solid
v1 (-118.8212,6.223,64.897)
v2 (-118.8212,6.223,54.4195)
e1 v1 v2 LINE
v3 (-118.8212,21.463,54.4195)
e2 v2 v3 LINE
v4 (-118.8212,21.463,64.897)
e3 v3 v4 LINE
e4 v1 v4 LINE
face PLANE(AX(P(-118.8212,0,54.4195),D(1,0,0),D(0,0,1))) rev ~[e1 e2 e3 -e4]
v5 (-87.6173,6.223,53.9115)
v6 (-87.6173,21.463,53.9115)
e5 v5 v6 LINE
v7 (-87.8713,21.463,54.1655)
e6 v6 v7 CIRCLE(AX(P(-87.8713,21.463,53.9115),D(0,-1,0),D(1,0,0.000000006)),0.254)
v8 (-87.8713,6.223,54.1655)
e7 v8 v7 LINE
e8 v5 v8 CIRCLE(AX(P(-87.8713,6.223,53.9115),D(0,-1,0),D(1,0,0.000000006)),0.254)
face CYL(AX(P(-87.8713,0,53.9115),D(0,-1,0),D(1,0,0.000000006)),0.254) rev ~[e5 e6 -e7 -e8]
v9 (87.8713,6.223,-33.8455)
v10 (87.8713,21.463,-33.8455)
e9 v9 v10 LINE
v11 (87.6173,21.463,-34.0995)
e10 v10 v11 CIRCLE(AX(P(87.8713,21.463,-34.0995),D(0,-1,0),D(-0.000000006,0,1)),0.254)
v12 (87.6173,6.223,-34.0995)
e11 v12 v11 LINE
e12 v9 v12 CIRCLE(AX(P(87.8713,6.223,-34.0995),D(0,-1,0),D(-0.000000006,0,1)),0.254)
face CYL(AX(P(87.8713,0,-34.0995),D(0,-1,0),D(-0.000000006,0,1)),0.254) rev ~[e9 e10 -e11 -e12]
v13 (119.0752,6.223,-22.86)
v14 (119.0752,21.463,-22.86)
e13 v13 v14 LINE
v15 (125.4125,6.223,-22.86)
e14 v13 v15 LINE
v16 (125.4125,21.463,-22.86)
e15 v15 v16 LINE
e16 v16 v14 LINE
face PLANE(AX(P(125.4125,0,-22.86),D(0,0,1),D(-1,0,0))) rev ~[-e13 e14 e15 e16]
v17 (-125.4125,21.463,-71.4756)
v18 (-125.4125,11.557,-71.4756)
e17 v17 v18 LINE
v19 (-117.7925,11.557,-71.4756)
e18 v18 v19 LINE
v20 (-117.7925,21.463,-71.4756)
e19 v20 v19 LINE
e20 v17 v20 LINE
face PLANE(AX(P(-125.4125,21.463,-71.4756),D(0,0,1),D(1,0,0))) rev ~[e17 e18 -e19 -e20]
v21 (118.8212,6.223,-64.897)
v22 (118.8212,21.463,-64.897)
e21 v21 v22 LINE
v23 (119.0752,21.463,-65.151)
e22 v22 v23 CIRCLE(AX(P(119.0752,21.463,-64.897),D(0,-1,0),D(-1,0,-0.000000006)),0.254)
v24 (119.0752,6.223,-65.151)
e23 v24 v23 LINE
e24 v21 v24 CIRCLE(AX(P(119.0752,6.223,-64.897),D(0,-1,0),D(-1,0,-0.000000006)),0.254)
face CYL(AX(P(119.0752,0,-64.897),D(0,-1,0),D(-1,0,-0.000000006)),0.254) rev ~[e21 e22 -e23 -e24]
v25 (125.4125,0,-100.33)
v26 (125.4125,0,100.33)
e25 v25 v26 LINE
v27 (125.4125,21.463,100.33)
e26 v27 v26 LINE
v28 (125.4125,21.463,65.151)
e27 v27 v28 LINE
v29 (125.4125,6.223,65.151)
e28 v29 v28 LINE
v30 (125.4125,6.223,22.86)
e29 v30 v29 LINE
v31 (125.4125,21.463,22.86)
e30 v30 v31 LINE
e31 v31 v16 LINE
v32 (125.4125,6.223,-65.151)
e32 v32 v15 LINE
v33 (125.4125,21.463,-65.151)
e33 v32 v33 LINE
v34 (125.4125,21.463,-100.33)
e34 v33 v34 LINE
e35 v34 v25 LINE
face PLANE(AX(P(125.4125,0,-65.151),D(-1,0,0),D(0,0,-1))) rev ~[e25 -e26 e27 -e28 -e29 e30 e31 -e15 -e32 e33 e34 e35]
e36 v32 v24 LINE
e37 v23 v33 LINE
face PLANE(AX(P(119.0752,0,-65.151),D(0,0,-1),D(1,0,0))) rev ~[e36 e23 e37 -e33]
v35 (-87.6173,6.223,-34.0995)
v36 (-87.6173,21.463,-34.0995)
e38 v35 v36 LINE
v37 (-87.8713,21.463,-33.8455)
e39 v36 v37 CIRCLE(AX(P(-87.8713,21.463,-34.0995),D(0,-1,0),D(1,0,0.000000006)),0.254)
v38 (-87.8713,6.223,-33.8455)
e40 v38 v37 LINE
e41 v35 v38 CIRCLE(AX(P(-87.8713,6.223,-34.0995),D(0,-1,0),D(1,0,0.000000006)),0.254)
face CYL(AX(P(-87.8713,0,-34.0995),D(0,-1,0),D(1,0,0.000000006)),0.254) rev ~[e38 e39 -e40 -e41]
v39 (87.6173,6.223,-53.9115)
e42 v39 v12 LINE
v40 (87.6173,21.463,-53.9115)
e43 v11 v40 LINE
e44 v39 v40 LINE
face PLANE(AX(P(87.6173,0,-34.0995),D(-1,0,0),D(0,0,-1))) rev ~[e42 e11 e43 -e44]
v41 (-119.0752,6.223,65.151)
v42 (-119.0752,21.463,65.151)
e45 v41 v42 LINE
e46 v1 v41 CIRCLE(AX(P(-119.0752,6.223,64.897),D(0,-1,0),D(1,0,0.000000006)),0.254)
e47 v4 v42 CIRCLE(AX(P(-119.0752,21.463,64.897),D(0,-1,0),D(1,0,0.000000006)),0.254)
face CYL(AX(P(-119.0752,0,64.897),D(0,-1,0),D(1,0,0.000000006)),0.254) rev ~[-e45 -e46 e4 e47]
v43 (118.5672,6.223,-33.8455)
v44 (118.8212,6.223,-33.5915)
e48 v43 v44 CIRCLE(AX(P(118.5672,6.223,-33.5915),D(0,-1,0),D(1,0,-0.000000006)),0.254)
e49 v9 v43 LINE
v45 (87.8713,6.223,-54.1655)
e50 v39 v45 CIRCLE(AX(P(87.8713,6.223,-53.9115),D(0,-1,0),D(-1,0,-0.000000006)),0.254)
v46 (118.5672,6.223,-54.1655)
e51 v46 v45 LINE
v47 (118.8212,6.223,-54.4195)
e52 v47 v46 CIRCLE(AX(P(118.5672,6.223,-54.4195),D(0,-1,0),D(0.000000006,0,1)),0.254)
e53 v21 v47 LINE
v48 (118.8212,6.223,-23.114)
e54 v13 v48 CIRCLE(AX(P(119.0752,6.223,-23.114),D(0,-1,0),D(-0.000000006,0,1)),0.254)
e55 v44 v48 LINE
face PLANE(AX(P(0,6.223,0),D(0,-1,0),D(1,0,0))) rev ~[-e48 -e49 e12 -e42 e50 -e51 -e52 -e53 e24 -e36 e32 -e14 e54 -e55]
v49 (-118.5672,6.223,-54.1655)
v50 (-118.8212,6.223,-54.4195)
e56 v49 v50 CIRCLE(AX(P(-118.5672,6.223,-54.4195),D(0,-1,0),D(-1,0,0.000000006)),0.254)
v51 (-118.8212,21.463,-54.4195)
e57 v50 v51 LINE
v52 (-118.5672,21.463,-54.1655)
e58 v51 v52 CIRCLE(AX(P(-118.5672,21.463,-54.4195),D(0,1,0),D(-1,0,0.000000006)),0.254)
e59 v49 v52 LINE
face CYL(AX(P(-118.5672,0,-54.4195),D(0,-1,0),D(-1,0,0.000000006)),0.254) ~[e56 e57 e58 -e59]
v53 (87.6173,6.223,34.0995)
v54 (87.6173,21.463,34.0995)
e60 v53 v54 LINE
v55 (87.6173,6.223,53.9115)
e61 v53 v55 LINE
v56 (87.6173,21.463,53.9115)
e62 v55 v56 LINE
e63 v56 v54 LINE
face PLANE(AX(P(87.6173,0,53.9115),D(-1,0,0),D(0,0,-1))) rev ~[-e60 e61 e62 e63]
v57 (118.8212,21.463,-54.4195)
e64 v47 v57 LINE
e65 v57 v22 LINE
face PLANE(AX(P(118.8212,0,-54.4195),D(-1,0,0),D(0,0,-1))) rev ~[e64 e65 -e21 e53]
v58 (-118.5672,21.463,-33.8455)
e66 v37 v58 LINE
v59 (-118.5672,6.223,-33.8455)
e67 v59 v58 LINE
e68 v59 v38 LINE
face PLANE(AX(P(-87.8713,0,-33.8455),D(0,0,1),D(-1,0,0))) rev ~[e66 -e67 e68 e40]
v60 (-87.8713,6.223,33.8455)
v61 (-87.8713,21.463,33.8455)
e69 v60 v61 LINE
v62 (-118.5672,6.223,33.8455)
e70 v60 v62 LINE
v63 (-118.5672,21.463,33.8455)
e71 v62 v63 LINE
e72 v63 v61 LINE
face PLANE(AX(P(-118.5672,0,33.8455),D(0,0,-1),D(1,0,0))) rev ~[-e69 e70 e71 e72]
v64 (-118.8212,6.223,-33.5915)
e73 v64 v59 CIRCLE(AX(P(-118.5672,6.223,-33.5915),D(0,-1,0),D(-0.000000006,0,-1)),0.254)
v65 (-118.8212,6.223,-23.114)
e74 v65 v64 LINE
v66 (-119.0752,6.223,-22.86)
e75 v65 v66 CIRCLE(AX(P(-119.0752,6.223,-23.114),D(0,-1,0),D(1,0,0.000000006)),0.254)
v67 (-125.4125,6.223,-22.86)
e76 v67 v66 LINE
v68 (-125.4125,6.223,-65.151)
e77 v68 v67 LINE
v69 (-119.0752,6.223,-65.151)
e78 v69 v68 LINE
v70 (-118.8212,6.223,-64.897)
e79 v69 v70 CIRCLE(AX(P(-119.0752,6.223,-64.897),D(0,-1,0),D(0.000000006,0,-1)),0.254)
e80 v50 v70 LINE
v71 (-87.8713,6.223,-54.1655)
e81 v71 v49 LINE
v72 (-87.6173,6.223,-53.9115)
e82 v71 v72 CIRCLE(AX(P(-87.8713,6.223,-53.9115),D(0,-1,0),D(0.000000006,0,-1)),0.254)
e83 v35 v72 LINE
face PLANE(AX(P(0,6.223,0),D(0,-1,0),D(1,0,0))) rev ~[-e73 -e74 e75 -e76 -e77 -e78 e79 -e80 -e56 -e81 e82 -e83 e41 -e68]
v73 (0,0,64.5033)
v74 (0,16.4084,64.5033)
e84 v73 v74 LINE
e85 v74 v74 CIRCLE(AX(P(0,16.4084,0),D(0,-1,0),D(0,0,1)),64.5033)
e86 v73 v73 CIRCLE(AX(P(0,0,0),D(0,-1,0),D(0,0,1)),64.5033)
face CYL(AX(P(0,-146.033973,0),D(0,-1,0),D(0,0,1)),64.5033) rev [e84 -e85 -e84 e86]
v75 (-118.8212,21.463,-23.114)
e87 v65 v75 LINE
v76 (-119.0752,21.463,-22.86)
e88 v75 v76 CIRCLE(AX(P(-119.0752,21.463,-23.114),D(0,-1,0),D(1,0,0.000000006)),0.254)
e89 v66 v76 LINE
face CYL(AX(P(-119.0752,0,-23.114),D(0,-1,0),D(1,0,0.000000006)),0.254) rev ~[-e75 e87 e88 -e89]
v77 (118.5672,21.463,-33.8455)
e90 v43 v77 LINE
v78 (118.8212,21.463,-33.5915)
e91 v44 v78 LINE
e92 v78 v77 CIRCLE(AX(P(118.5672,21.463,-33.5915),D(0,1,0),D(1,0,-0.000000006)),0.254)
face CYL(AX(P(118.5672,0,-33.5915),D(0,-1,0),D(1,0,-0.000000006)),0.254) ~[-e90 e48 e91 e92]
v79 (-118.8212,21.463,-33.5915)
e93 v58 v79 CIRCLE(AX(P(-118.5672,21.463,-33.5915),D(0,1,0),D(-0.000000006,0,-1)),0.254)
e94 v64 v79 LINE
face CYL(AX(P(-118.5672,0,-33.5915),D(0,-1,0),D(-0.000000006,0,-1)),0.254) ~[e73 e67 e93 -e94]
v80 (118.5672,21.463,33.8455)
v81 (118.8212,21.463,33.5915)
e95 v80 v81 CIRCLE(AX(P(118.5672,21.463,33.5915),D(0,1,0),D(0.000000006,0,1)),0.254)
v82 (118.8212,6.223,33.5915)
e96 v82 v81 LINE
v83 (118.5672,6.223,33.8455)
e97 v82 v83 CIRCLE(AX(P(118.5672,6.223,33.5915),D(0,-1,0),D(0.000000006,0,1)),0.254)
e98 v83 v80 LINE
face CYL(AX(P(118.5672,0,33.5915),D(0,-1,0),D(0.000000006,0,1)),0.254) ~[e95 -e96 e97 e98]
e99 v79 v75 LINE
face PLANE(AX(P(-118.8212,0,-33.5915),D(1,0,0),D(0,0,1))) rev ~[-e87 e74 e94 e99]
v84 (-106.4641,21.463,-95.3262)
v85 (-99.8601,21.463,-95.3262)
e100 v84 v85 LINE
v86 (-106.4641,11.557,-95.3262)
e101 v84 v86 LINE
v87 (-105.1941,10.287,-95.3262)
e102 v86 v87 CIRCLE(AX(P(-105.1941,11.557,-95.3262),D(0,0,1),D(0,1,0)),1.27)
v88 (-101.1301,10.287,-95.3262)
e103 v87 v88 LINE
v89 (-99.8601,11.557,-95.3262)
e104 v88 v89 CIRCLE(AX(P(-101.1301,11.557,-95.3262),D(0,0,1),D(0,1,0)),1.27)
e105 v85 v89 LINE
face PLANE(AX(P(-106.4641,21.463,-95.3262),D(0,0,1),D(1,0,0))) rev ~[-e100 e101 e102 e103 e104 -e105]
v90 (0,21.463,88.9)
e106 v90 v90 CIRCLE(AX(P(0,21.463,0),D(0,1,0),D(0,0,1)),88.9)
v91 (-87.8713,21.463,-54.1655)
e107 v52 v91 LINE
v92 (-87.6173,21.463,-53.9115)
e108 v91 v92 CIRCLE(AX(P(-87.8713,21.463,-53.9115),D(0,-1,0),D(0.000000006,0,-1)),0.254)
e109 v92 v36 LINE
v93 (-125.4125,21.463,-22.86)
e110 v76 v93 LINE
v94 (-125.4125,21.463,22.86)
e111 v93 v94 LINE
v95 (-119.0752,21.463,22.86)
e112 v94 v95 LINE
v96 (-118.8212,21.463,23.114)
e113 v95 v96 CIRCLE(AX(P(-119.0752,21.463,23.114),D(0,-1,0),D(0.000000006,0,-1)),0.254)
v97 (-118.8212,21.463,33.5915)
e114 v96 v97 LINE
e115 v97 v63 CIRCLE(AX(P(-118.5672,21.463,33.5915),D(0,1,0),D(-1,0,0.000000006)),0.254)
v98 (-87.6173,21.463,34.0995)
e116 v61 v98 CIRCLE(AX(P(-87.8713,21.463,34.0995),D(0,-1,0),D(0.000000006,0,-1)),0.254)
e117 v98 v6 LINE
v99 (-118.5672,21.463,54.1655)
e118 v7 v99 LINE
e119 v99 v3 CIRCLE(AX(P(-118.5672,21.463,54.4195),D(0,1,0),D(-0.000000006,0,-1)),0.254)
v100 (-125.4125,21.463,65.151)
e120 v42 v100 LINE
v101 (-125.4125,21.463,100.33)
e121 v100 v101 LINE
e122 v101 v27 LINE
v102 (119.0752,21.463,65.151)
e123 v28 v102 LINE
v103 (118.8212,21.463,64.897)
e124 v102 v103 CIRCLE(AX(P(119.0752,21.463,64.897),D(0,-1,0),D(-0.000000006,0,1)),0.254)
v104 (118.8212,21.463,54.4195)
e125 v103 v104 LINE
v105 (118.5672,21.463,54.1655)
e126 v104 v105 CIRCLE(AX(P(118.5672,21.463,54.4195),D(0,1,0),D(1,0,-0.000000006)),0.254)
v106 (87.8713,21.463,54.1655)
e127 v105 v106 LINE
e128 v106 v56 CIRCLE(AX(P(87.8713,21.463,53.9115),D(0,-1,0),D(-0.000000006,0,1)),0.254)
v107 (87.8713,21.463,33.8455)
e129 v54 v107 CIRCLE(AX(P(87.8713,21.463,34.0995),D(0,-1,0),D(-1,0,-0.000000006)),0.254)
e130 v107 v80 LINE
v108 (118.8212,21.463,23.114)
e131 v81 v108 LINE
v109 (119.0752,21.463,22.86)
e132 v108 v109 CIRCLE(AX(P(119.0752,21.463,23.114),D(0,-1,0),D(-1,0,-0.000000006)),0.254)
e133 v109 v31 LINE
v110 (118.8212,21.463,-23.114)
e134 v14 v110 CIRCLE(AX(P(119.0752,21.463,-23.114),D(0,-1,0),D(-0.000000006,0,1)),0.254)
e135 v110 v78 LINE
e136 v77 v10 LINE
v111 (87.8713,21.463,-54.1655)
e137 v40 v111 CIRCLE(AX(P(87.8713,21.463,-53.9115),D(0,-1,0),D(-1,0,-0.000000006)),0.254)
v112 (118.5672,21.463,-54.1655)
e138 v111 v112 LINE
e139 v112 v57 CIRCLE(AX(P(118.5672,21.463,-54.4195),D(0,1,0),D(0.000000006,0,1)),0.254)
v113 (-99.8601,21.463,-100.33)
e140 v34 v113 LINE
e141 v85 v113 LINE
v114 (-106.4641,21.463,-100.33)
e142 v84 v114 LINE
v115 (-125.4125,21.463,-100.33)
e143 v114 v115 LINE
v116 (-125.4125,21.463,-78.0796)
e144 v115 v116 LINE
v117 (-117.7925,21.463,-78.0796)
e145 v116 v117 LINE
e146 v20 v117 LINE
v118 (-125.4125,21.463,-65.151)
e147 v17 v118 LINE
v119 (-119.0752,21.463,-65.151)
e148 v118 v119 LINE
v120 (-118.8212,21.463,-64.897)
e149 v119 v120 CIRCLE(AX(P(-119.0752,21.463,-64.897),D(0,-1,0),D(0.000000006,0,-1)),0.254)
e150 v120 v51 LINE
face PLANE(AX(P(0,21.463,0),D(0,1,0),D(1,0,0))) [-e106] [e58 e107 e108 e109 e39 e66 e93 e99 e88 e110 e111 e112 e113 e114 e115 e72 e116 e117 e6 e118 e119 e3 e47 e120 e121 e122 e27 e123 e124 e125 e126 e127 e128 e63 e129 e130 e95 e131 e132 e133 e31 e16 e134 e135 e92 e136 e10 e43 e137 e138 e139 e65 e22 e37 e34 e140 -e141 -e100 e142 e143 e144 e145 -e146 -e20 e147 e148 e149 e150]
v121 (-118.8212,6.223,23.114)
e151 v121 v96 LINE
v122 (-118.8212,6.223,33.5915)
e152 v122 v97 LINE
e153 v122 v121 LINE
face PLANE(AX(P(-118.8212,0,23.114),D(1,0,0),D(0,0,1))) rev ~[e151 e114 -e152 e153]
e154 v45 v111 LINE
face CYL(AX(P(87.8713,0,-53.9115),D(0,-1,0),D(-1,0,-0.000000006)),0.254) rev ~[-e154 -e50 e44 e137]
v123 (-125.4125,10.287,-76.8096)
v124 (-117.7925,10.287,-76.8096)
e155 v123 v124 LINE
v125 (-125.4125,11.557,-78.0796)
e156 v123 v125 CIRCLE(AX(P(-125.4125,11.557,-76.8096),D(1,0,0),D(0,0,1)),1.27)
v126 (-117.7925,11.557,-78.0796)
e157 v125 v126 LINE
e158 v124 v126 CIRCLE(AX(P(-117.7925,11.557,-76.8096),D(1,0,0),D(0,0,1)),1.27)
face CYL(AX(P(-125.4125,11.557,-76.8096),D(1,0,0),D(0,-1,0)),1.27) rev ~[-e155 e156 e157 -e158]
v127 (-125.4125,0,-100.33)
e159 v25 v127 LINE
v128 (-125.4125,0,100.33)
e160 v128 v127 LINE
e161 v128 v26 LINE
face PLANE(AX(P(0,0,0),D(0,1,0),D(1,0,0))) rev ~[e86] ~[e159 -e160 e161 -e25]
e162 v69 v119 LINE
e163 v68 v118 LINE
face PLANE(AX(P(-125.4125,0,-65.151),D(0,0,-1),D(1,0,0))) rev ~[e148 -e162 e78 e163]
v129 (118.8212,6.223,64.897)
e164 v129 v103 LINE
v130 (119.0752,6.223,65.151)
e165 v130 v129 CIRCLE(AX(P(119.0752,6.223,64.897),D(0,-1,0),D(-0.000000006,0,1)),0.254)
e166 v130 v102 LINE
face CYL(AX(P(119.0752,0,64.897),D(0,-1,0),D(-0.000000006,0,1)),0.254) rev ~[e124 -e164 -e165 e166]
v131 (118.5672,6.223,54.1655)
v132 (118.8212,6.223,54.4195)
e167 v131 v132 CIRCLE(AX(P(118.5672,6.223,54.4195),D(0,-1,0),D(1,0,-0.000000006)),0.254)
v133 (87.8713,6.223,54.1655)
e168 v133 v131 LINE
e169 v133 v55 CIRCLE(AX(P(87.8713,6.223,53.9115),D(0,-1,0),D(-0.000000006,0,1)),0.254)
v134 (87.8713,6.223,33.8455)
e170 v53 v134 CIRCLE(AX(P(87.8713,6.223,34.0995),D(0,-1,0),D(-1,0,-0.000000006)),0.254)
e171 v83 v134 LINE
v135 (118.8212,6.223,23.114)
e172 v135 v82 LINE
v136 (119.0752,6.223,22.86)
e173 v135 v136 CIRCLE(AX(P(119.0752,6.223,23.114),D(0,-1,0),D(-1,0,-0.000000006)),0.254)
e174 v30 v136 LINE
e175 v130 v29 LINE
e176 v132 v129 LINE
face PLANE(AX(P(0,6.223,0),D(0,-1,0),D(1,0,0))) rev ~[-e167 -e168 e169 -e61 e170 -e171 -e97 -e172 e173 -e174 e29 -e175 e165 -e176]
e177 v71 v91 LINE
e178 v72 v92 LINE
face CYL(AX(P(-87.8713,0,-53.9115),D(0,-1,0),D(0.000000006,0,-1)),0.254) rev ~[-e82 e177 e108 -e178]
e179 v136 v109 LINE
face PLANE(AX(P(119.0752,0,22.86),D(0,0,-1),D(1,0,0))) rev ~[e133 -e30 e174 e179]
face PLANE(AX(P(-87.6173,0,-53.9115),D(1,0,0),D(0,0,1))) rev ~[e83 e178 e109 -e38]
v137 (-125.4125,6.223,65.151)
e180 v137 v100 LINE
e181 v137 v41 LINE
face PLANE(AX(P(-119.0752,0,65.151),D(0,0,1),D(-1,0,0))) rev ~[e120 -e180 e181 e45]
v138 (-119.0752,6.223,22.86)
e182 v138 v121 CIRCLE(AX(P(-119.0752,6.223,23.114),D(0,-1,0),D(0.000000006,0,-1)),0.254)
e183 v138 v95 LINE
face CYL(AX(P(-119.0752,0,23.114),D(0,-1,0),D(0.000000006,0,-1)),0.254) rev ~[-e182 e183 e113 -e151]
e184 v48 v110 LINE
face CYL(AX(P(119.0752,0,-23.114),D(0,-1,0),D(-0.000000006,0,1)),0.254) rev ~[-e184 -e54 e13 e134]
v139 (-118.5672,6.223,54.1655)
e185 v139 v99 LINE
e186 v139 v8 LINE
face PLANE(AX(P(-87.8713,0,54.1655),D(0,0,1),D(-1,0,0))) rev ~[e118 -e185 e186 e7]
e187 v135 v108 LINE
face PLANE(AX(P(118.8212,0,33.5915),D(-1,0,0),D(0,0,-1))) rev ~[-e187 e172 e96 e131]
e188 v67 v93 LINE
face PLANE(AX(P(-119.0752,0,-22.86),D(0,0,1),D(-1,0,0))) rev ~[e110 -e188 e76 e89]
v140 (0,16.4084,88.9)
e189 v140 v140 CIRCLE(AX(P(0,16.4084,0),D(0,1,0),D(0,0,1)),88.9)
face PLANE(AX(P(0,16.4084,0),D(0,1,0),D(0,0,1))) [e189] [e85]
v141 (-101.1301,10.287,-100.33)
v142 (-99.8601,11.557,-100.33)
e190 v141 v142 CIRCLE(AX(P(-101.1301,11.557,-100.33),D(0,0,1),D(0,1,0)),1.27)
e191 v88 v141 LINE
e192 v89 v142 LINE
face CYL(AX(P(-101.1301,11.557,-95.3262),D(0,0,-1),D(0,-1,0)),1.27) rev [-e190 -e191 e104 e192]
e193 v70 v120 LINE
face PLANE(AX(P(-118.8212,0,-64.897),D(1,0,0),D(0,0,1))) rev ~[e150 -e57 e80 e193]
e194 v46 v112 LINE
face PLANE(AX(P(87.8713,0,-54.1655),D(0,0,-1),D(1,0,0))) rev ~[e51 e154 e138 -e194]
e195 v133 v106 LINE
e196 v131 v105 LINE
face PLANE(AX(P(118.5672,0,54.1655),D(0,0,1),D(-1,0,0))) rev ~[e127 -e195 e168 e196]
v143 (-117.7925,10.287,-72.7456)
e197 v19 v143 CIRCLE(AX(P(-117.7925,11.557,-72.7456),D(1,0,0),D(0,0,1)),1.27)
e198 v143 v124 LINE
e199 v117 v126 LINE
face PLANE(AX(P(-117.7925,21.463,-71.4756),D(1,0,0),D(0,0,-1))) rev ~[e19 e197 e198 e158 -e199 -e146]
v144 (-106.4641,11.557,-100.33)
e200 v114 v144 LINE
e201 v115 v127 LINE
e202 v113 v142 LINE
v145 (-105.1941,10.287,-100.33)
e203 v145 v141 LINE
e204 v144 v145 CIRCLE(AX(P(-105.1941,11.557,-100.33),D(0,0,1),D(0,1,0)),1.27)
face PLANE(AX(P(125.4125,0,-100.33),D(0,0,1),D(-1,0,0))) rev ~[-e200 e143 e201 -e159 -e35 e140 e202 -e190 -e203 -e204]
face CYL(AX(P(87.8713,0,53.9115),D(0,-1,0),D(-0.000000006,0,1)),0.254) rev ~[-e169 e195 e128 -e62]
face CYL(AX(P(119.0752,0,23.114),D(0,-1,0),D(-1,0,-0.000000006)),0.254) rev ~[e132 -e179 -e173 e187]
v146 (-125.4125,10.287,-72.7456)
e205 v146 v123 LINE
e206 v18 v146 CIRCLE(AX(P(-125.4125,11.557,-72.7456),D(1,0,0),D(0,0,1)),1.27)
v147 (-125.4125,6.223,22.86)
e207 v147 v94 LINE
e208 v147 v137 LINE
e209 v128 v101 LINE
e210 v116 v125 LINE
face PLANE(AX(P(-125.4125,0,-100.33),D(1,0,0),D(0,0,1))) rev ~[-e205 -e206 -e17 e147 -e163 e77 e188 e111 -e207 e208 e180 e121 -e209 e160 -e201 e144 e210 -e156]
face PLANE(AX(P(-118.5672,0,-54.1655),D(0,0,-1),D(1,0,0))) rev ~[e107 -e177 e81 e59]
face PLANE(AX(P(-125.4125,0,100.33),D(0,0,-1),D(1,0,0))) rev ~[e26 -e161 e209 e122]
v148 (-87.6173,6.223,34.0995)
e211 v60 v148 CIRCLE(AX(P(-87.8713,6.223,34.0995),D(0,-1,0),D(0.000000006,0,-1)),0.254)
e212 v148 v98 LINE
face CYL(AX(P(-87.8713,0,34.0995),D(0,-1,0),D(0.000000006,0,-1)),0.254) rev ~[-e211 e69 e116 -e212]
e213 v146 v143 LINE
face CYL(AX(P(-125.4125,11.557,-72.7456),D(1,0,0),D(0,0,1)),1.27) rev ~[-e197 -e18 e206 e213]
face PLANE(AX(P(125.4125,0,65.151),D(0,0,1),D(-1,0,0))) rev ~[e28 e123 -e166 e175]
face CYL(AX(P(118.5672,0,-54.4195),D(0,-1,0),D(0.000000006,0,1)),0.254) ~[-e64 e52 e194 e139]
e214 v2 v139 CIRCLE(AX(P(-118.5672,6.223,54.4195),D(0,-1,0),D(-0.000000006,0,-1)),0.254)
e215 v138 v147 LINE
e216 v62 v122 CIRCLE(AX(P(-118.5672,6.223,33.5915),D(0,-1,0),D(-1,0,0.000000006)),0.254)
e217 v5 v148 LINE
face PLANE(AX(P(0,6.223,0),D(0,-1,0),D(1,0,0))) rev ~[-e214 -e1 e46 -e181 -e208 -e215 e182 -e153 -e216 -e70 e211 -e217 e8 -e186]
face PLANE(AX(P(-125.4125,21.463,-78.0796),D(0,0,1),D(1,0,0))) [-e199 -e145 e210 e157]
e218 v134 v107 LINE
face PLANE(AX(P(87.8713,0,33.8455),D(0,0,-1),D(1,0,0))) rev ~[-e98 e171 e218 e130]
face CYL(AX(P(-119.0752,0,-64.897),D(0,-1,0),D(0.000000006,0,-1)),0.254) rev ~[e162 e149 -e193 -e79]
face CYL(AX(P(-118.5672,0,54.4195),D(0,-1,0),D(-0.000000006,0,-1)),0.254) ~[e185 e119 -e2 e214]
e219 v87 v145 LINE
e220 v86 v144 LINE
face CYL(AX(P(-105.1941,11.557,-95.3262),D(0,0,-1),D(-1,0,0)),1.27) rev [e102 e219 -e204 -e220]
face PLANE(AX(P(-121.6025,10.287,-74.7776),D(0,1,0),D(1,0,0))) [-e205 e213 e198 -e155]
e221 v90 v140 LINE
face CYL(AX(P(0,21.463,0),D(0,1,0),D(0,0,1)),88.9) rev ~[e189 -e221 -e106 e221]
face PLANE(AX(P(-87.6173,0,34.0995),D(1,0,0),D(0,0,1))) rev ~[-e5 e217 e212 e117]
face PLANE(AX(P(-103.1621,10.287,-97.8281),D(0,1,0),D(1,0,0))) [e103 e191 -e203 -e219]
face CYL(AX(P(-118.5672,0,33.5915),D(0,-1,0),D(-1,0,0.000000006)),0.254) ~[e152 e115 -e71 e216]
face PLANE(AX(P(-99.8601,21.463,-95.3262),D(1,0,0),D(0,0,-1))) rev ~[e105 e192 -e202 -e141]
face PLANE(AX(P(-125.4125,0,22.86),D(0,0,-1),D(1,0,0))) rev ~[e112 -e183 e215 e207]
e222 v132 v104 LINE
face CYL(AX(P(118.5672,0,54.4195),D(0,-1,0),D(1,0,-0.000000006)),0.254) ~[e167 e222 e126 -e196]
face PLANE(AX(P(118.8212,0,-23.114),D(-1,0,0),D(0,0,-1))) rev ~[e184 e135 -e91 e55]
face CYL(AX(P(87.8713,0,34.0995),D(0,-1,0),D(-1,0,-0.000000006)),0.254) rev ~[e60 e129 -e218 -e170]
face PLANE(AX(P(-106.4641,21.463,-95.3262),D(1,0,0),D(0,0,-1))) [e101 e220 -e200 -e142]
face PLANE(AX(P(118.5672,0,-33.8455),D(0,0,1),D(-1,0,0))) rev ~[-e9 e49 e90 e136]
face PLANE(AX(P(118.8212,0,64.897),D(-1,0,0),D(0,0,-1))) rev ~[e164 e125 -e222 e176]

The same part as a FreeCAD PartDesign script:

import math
import FreeCAD as App
import Part
import Sketcher
Q = App.Units.Quantity


def edges_at(feature, points):
    """Names of the edges that pass closest to the given points."""
    edges = feature.Shape.Edges
    near = lambda p: min(range(len(edges)), key=lambda i: edges[i].distToShape(Part.Vertex(*p))[0])
    return sorted({f"Edge{near(p) + 1}" for p in points})

doc = App.newDocument("Part")
body = doc.addObject("PartDesign::Body", "Body")

# Sketch on XZ plane
sketch1 = body.newObject("Sketcher::SketchObject", "Sketch")
sketch1.AttachmentSupport = (doc.getObject("XZ_Plane"), [""])
sketch1.MapMode = "FlatFace"
sketch1.addGeometry([
    Part.LineSegment(App.Vector(-125.4125, -65.151, 0), App.Vector(-119.0752, -65.151, 0)),  # 0
    Part.ArcOfCircle(Part.Circle(App.Vector(-119.0752, -64.897, 0), App.Vector(0, 0, 1), 0.254), math.radians(-90), math.radians(0)),  # 1
    Part.LineSegment(App.Vector(-118.8212, -64.897, 0), App.Vector(-118.8212, -54.4195, 0)),  # 2
    Part.ArcOfCircle(Part.Circle(App.Vector(-118.5672, -54.4195, 0), App.Vector(0, 0, 1), 0.254), math.radians(90), math.radians(180)),  # 3
    Part.LineSegment(App.Vector(-118.5672, -54.1655, 0), App.Vector(-87.8713, -54.1655, 0)),  # 4
    Part.ArcOfCircle(Part.Circle(App.Vector(-87.8713, -53.9115, 0), App.Vector(0, 0, 1), 0.254), math.radians(-90), math.radians(0)),  # 5
    Part.LineSegment(App.Vector(-87.6173, -53.9115, 0), App.Vector(-87.6173, -34.0995, 0)),  # 6
    Part.ArcOfCircle(Part.Circle(App.Vector(-87.8713, -34.0995, 0), App.Vector(0, 0, 1), 0.254), math.radians(0), math.radians(90)),  # 7
    Part.LineSegment(App.Vector(-87.8713, -33.8455, 0), App.Vector(-118.5672, -33.8455, 0)),  # 8
    Part.ArcOfCircle(Part.Circle(App.Vector(-118.5672, -33.5915, 0), App.Vector(0, 0, 1), 0.254), math.radians(-180), math.radians(-90)),  # 9
    Part.LineSegment(App.Vector(-118.8212, -33.5915, 0), App.Vector(-118.8212, -23.114, 0)),  # 10
    Part.ArcOfCircle(Part.Circle(App.Vector(-119.0752, -23.114, 0), App.Vector(0, 0, 1), 0.254), math.radians(0), math.radians(90)),  # 11
    Part.LineSegment(App.Vector(-119.0752, -22.86, 0), App.Vector(-125.4125, -22.86, 0)),  # 12
    Part.LineSegment(App.Vector(-125.4125, -22.86, 0), App.Vector(-125.4125, 22.86, 0)),  # 13
    Part.LineSegment(App.Vector(-125.4125, 22.86, 0), App.Vector(-119.0752, 22.86, 0)),  # 14
    Part.ArcOfCircle(Part.Circle(App.Vector(-119.0752, 23.114, 0), App.Vector(0, 0, 1), 0.254), math.radians(-90), math.radians(0)),  # 15
    Part.LineSegment(App.Vector(-118.8212, 23.114, 0), App.Vector(-118.8212, 33.5915, 0)),  # 16
    Part.ArcOfCircle(Part.Circle(App.Vector(-118.5672, 33.5915, 0), App.Vector(0, 0, 1), 0.254), math.radians(90), math.radians(180)),  # 17
    Part.LineSegment(App.Vector(-118.5672, 33.8455, 0), App.Vector(-87.8713, 33.8455, 0)),  # 18
    Part.ArcOfCircle(Part.Circle(App.Vector(-87.8713, 34.0995, 0), App.Vector(0, 0, 1), 0.254), math.radians(-90), math.radians(0)),  # 19
    Part.LineSegment(App.Vector(-87.6173, 34.0995, 0), App.Vector(-87.6173, 53.9115, 0)),  # 20
    Part.ArcOfCircle(Part.Circle(App.Vector(-87.8713, 53.9115, 0), App.Vector(0, 0, 1), 0.254), math.radians(0), math.radians(90)),  # 21
    Part.LineSegment(App.Vector(-87.8713, 54.1655, 0), App.Vector(-118.5672, 54.1655, 0)),  # 22
    Part.ArcOfCircle(Part.Circle(App.Vector(-118.5672, 54.4195, 0), App.Vector(0, 0, 1), 0.254), math.radians(-180), math.radians(-90)),  # 23
    Part.LineSegment(App.Vector(-118.8212, 54.4195, 0), App.Vector(-118.8212, 64.897, 0)),  # 24
    Part.ArcOfCircle(Part.Circle(App.Vector(-119.0752, 64.897, 0), App.Vector(0, 0, 1), 0.254), math.radians(0), math.radians(90)),  # 25
    Part.LineSegment(App.Vector(-119.0752, 65.151, 0), App.Vector(-125.4125, 65.151, 0)),  # 26
    Part.LineSegment(App.Vector(-125.4125, 65.151, 0), App.Vector(-125.4125, 100.33, 0)),  # 27
    Part.LineSegment(App.Vector(-125.4125, 100.33, 0), App.Vector(125.4125, 100.33, 0)),  # 28
    Part.LineSegment(App.Vector(125.4125, 100.33, 0), App.Vector(125.4125, 65.151, 0)),  # 29
    Part.LineSegment(App.Vector(125.4125, 65.151, 0), App.Vector(119.0752, 65.151, 0)),  # 30
    Part.ArcOfCircle(Part.Circle(App.Vector(119.0752, 64.897, 0), App.Vector(0, 0, 1), 0.254), math.radians(90), math.radians(180)),  # 31
    Part.LineSegment(App.Vector(118.8212, 64.897, 0), App.Vector(118.8212, 54.4195, 0)),  # 32
    Part.ArcOfCircle(Part.Circle(App.Vector(118.5672, 54.4195, 0), App.Vector(0, 0, 1), 0.254), math.radians(-90), math.radians(0)),  # 33
    Part.LineSegment(App.Vector(118.5672, 54.1655, 0), App.Vector(87.8713, 54.1655, 0)),  # 34
    Part.ArcOfCircle(Part.Circle(App.Vector(87.8713, 53.9115, 0), App.Vector(0, 0, 1), 0.254), math.radians(90), math.radians(180)),  # 35
    Part.LineSegment(App.Vector(87.6173, 53.9115, 0), App.Vector(87.6173, 34.0995, 0)),  # 36
    Part.ArcOfCircle(Part.Circle(App.Vector(87.8713, 34.0995, 0), App.Vector(0, 0, 1), 0.254), math.radians(-180), math.radians(-90)),  # 37
    Part.LineSegment(App.Vector(87.8713, 33.8455, 0), App.Vector(118.5672, 33.8455, 0)),  # 38
    Part.ArcOfCircle(Part.Circle(App.Vector(118.5672, 33.5915, 0), App.Vector(0, 0, 1), 0.254), math.radians(0), math.radians(90)),  # 39
    Part.LineSegment(App.Vector(118.8212, 33.5915, 0), App.Vector(118.8212, 23.114, 0)),  # 40
    Part.ArcOfCircle(Part.Circle(App.Vector(119.0752, 23.114, 0), App.Vector(0, 0, 1), 0.254), math.radians(-180), math.radians(-90)),  # 41
    Part.LineSegment(App.Vector(119.0752, 22.86, 0), App.Vector(125.4125, 22.86, 0)),  # 42
    Part.LineSegment(App.Vector(125.4125, 22.86, 0), App.Vector(125.4125, -22.86, 0)),  # 43
    Part.LineSegment(App.Vector(125.4125, -22.86, 0), App.Vector(119.0752, -22.86, 0)),  # 44
    Part.ArcOfCircle(Part.Circle(App.Vector(119.0752, -23.114, 0), App.Vector(0, 0, 1), 0.254), math.radians(90), math.radians(180)),  # 45
    Part.LineSegment(App.Vector(118.8212, -23.114, 0), App.Vector(118.8212, -33.5915, 0)),  # 46
    Part.ArcOfCircle(Part.Circle(App.Vector(118.5672, -33.5915, 0), App.Vector(0, 0, 1), 0.254), math.radians(-90), math.radians(0)),  # 47
    Part.LineSegment(App.Vector(118.5672, -33.8455, 0), App.Vector(87.8713, -33.8455, 0)),  # 48
    Part.ArcOfCircle(Part.Circle(App.Vector(87.8713, -34.0995, 0), App.Vector(0, 0, 1), 0.254), math.radians(90), math.radians(180)),  # 49
    Part.LineSegment(App.Vector(87.6173, -34.0995, 0), App.Vector(87.6173, -53.9115, 0)),  # 50
    Part.ArcOfCircle(Part.Circle(App.Vector(87.8713, -53.9115, 0), App.Vector(0, 0, 1), 0.254), math.radians(-180), math.radians(-90)),  # 51
    Part.LineSegment(App.Vector(87.8713, -54.1655, 0), App.Vector(118.5672, -54.1655, 0)),  # 52
    Part.ArcOfCircle(Part.Circle(App.Vector(118.5672, -54.4195, 0), App.Vector(0, 0, 1), 0.254), math.radians(0), math.radians(90)),  # 53
    Part.LineSegment(App.Vector(118.8212, -54.4195, 0), App.Vector(118.8212, -64.897, 0)),  # 54
    Part.ArcOfCircle(Part.Circle(App.Vector(119.0752, -64.897, 0), App.Vector(0, 0, 1), 0.254), math.radians(-180), math.radians(-90)),  # 55
    Part.LineSegment(App.Vector(119.0752, -65.151, 0), App.Vector(125.4125, -65.151, 0)),  # 56
    Part.LineSegment(App.Vector(125.4125, -65.151, 0), App.Vector(125.4125, -100.33, 0)),  # 57
    Part.LineSegment(App.Vector(125.4125, -100.33, 0), App.Vector(-125.4125, -100.33, 0)),  # 58
    Part.LineSegment(App.Vector(-125.4125, -100.33, 0), App.Vector(-125.4125, -65.151, 0)),  # 59
], False)
sketch1.addConstraint([
    Sketcher.Constraint("Tangent", 0, 2, 1, 1),
    Sketcher.Constraint("Tangent", 1, 2, 2, 1),
    Sketcher.Constraint("Tangent", 2, 2, 3, 2),
    Sketcher.Constraint("Tangent", 3, 1, 4, 1),
    Sketcher.Constraint("Tangent", 4, 2, 5, 1),
    Sketcher.Constraint("Tangent", 5, 2, 6, 1),
    Sketcher.Constraint("Tangent", 6, 2, 7, 1),
    Sketcher.Constraint("Tangent", 7, 2, 8, 1),
    Sketcher.Constraint("Tangent", 8, 2, 9, 2),
    Sketcher.Constraint("Tangent", 9, 1, 10, 1),
    Sketcher.Constraint("Tangent", 10, 2, 11, 1),
    Sketcher.Constraint("Tangent", 11, 2, 12, 1),
    Sketcher.Constraint("Coincident", 12, 2, 13, 1),
    Sketcher.Constraint("Coincident", 13, 2, 14, 1),
    Sketcher.Constraint("Tangent", 14, 2, 15, 1),
    Sketcher.Constraint("Tangent", 15, 2, 16, 1),
    Sketcher.Constraint("Tangent", 16, 2, 17, 2),
    Sketcher.Constraint("Tangent", 17, 1, 18, 1),
    Sketcher.Constraint("Tangent", 18, 2, 19, 1),
    Sketcher.Constraint("Tangent", 19, 2, 20, 1),
    Sketcher.Constraint("Tangent", 20, 2, 21, 1),
    Sketcher.Constraint("Tangent", 21, 2, 22, 1),
    Sketcher.Constraint("Tangent", 22, 2, 23, 2),
    Sketcher.Constraint("Tangent", 23, 1, 24, 1),
    Sketcher.Constraint("Tangent", 24, 2, 25, 1),
    Sketcher.Constraint("Tangent", 25, 2, 26, 1),
    Sketcher.Constraint("Coincident", 26, 2, 27, 1),
    Sketcher.Constraint("Coincident", 27, 2, 28, 1),
    Sketcher.Constraint("Coincident", 28, 2, 29, 1),
    Sketcher.Constraint("Coincident", 29, 2, 30, 1),
    Sketcher.Constraint("Tangent", 30, 2, 31, 1),
    Sketcher.Constraint("Tangent", 31, 2, 32, 1),
    Sketcher.Constraint("Tangent", 32, 2, 33, 2),
    Sketcher.Constraint("Tangent", 33, 1, 34, 1),
    Sketcher.Constraint("Tangent", 34, 2, 35, 1),
    Sketcher.Constraint("Tangent", 35, 2, 36, 1),
    Sketcher.Constraint("Tangent", 36, 2, 37, 1),
    Sketcher.Constraint("Tangent", 37, 2, 38, 1),
    Sketcher.Constraint("Tangent", 38, 2, 39, 2),
    Sketcher.Constraint("Tangent", 39, 1, 40, 1),
    Sketcher.Constraint("Tangent", 40, 2, 41, 1),
    Sketcher.Constraint("Tangent", 41, 2, 42, 1),
    Sketcher.Constraint("Coincident", 42, 2, 43, 1),
    Sketcher.Constraint("Coincident", 43, 2, 44, 1),
    Sketcher.Constraint("Tangent", 44, 2, 45, 1),
    Sketcher.Constraint("Tangent", 45, 2, 46, 1),
    Sketcher.Constraint("Tangent", 46, 2, 47, 2),
    Sketcher.Constraint("Tangent", 47, 1, 48, 1),
    Sketcher.Constraint("Tangent", 48, 2, 49, 1),
    Sketcher.Constraint("Tangent", 49, 2, 50, 1),
    Sketcher.Constraint("Tangent", 50, 2, 51, 1),
    Sketcher.Constraint("Tangent", 51, 2, 52, 1),
    Sketcher.Constraint("Tangent", 52, 2, 53, 2),
    Sketcher.Constraint("Tangent", 53, 1, 54, 1),
    Sketcher.Constraint("Tangent", 54, 2, 55, 1),
    Sketcher.Constraint("Tangent", 55, 2, 56, 1),
    Sketcher.Constraint("Coincident", 56, 2, 57, 1),
    Sketcher.Constraint("Coincident", 57, 2, 58, 1),
    Sketcher.Constraint("Coincident", 58, 2, 59, 1),
    Sketcher.Constraint("Coincident", 59, 2, 0, 1),
    Sketcher.Constraint("Horizontal", 0),
    Sketcher.Constraint("Vertical", 2),
    Sketcher.Constraint("Horizontal", 4),
    Sketcher.Constraint("Vertical", 6),
    Sketcher.Constraint("Horizontal", 8),
    Sketcher.Constraint("Vertical", 10),
    Sketcher.Constraint("Horizontal", 12),
    Sketcher.Constraint("Vertical", 13),
    Sketcher.Constraint("Horizontal", 14),
    Sketcher.Constraint("Vertical", 16),
    Sketcher.Constraint("Horizontal", 18),
    Sketcher.Constraint("Vertical", 20),
    Sketcher.Constraint("Horizontal", 22),
    Sketcher.Constraint("Vertical", 24),
    Sketcher.Constraint("Horizontal", 26),
    Sketcher.Constraint("Vertical", 27),
    Sketcher.Constraint("Horizontal", 28),
    Sketcher.Constraint("Vertical", 29),
    Sketcher.Constraint("Horizontal", 30),
    Sketcher.Constraint("Vertical", 32),
    Sketcher.Constraint("Horizontal", 34),
    Sketcher.Constraint("Vertical", 36),
    Sketcher.Constraint("Horizontal", 38),
    Sketcher.Constraint("Vertical", 40),
    Sketcher.Constraint("Horizontal", 42),
    Sketcher.Constraint("Vertical", 43),
    Sketcher.Constraint("Horizontal", 44),
    Sketcher.Constraint("Vertical", 46),
    Sketcher.Constraint("Horizontal", 48),
    Sketcher.Constraint("Vertical", 50),
    Sketcher.Constraint("Horizontal", 52),
    Sketcher.Constraint("Vertical", 54),
    Sketcher.Constraint("Horizontal", 56),
    Sketcher.Constraint("Vertical", 57),
    Sketcher.Constraint("Horizontal", 58),
    Sketcher.Constraint("Vertical", 59),
    Sketcher.Constraint("Equal", 1, 3),
    Sketcher.Constraint("Equal", 3, 5),
    Sketcher.Constraint("Equal", 5, 7),
    Sketcher.Constraint("Equal", 7, 9),
    Sketcher.Constraint("Equal", 9, 11),
    Sketcher.Constraint("Equal", 11, 15),
    Sketcher.Constraint("Equal", 15, 17),
    Sketcher.Constraint("Equal", 17, 19),
    Sketcher.Constraint("Equal", 19, 21),
    Sketcher.Constraint("Equal", 21, 23),
    Sketcher.Constraint("Equal", 23, 25),
    Sketcher.Constraint("Equal", 25, 31),
    Sketcher.Constraint("Equal", 31, 33),
    Sketcher.Constraint("Equal", 33, 35),
    Sketcher.Constraint("Equal", 35, 37),
    Sketcher.Constraint("Equal", 37, 39),
    Sketcher.Constraint("Equal", 39, 41),
    Sketcher.Constraint("Equal", 41, 45),
    Sketcher.Constraint("Equal", 45, 47),
    Sketcher.Constraint("Equal", 47, 49),
    Sketcher.Constraint("Equal", 49, 51),
    Sketcher.Constraint("Equal", 51, 53),
    Sketcher.Constraint("Equal", 53, 55),
    Sketcher.Constraint("Symmetric", 1, 3, 31, 3, -1, 1),
    Sketcher.Constraint("Symmetric", 5, 3, 35, 3, -1, 1),
    Sketcher.Constraint("Symmetric", 9, 3, 39, 3, -1, 1),
    Sketcher.Constraint("Symmetric", 15, 3, 45, 3, -1, 1),
    Sketcher.Constraint("Symmetric", 19, 3, 49, 3, -1, 1),
    Sketcher.Constraint("Symmetric", 23, 3, 53, 3, -1, 1),
    Sketcher.Constraint("Symmetric", 12, 2, 42, 2, -1, 1),
    Sketcher.Constraint("Symmetric", 26, 2, 56, 2, -1, 1),
    Sketcher.Constraint("Symmetric", 28, 2, 58, 2, -1, 1),
    Sketcher.Constraint("Symmetric", 25, 3, 31, 3, -2),
    Sketcher.Constraint("Symmetric", 21, 3, 35, 3, -2),
    Sketcher.Constraint("Symmetric", 17, 3, 39, 3, -2),
    Sketcher.Constraint("Horizontal", 15, 3, 41, 3),
    Sketcher.Constraint("Vertical", 3, 3, 9, 3),
    Sketcher.Constraint("Vertical", 13, 2, 26, 2),
    Sketcher.Constraint("Vertical", 29, 2, 42, 2),
    Sketcher.Constraint("Equal", 2, 10),
    Sketcher.Constraint("Radius", 1, Q("0.01 in")),
    Sketcher.Constraint("DistanceY", 13, 1, 13, 2, Q("1.8 in")),
    Sketcher.Constraint("DistanceY", 6, 1, 6, 2, Q("0.78 in")),
    Sketcher.Constraint("DistanceX", 28, 1, 28, 2, Q("9.875 in")),
    Sketcher.Constraint("DistanceY", 27, 1, 27, 2, Q("1.385 in")),
    Sketcher.Constraint("DistanceY", -1, 1, 27, 2, Q("3.95 in")),
    Sketcher.Constraint("DistanceX", 0, 1, 0, 2, Q("0.2495 in")),
    Sketcher.Constraint("DistanceX", 4, 1, 4, 2, Q("1.2085 in")),
])
pad1 = body.newObject("PartDesign::Pad", "Pad")
pad1.Profile = sketch1
pad1.Length = Q("0.845 in")
pad1.Reversed = True

# Sketch on XZ plane
sketch2 = body.newObject("Sketcher::SketchObject", "Sketch001")
sketch2.AttachmentSupport = (doc.getObject("XZ_Plane"), [""])
sketch2.MapMode = "FlatFace"
sketch2.AttachmentOffset = App.Placement(App.Vector(0, 0, -0.845 * 25.4), App.Rotation())
sketch2.addGeometry(Part.Circle(App.Vector(0, 0, 0), App.Vector(0, 0, 1), 88.9), False)
sketch2.addConstraint([
    Sketcher.Constraint("Coincident", 0, 3, -1, 1),
    Sketcher.Constraint("Diameter", 0, Q("7 in")),
])
pocket1 = body.newObject("PartDesign::Pocket", "Pocket")
pocket1.Profile = sketch2
pocket1.Length = Q("0.199 in")
pocket1.Reversed = True

# Sketch on XZ plane
sketch3 = body.newObject("Sketcher::SketchObject", "Sketch002")
sketch3.AttachmentSupport = (doc.getObject("XZ_Plane"), [""])
sketch3.MapMode = "FlatFace"
sketch3.AttachmentOffset = App.Placement(App.Vector(0, 0, -0.646 * 25.4), App.Rotation())
sketch3.addGeometry(Part.Circle(App.Vector(0, 0, 0), App.Vector(0, 0, 1), 64.5033), False)
sketch3.addConstraint([
    Sketcher.Constraint("Coincident", 0, 3, -1, 1),
    Sketcher.Constraint("Diameter", 0, Q("5.079 in")),
])
pocket2 = body.newObject("PartDesign::Pocket", "Pocket001")
pocket2.Profile = sketch3
pocket2.Type = "ThroughAll"
pocket2.Midplane = True

# Sketch on XZ plane
sketch4 = body.newObject("Sketcher::SketchObject", "Sketch003")
sketch4.AttachmentSupport = (doc.getObject("XZ_Plane"), [""])
sketch4.MapMode = "FlatFace"
sketch4.addGeometry([
    Part.LineSegment(App.Vector(-125.4125, 100.33, 0), App.Vector(-125.4125, -100.33, 0)),
    Part.LineSegment(App.Vector(-125.4125, -100.33, 0), App.Vector(125.4125, -100.33, 0)),
    Part.LineSegment(App.Vector(125.4125, -100.33, 0), App.Vector(125.4125, 100.33, 0)),
    Part.LineSegment(App.Vector(125.4125, 100.33, 0), App.Vector(-125.4125, 100.33, 0)),
], False)
sketch4.addConstraint([
    Sketcher.Constraint("Coincident", 0, 2, 1, 1),
    Sketcher.Constraint("Coincident", 1, 2, 2, 1),
    Sketcher.Constraint("Coincident", 2, 2, 3, 1),
    Sketcher.Constraint("Coincident", 3, 2, 0, 1),
    Sketcher.Constraint("Vertical", 0),
    Sketcher.Constraint("Horizontal", 1),
    Sketcher.Constraint("Vertical", 2),
    Sketcher.Constraint("Horizontal", 3),
    Sketcher.Constraint("Symmetric", 0, 2, 2, 2, -1, 1),
    Sketcher.Constraint("DistanceY", 0, 2, 0, 1, Q("7.9 in")),
    Sketcher.Constraint("DistanceX", 1, 1, 1, 2, Q("9.875 in")),
])
pad2 = body.newObject("PartDesign::Pad", "Pad001")
pad2.Profile = sketch4
pad2.Length = Q("0.245 in")
pad2.Reversed = True

# Sketch on XZ plane
sketch5 = body.newObject("Sketcher::SketchObject", "Sketch004")
sketch5.AttachmentSupport = (doc.getObject("XZ_Plane"), [""])
sketch5.MapMode = "FlatFace"
sketch5.AttachmentOffset = App.Placement(App.Vector(0, 0, -0.646 * 25.4), App.Rotation())
sketch5.addGeometry(Part.Circle(App.Vector(0, 0, 0), App.Vector(0, 0, 1), 64.5033), False)
sketch5.addConstraint([
    Sketcher.Constraint("Coincident", 0, 3, -1, 1),
    Sketcher.Constraint("Diameter", 0, Q("5.079 in")),
])
pocket3 = body.newObject("PartDesign::Pocket", "Pocket002")
pocket3.Profile = sketch5
pocket3.Type = "ThroughAll"
pocket3.Midplane = True

# Sketch on XZ plane
sketch6 = body.newObject("Sketcher::SketchObject", "Sketch005")
sketch6.AttachmentSupport = (doc.getObject("XZ_Plane"), [""])
sketch6.MapMode = "FlatFace"
sketch6.AttachmentOffset = App.Placement(App.Vector(0, 0, -0.845 * 25.4), App.Rotation())
sketch6.addGeometry([
    Part.LineSegment(App.Vector(-106.4641, -100.33, 0), App.Vector(-106.4641, -95.3262, 0)),  # 0
    Part.LineSegment(App.Vector(-106.4641, -95.3262, 0), App.Vector(-99.8601, -95.3262, 0)),  # 1
    Part.LineSegment(App.Vector(-99.8601, -95.3262, 0), App.Vector(-99.8601, -100.33, 0)),  # 2
    Part.LineSegment(App.Vector(-99.8601, -100.33, 0), App.Vector(-106.4641, -100.33, 0)),  # 3
    Part.LineSegment(App.Vector(-125.4125, -78.0796, 0), App.Vector(-125.4125, -71.4756, 0)),  # 4
    Part.LineSegment(App.Vector(-125.4125, -71.4756, 0), App.Vector(-117.7925, -71.4756, 0)),  # 5
    Part.LineSegment(App.Vector(-117.7925, -71.4756, 0), App.Vector(-117.7925, -78.0796, 0)),  # 6
    Part.LineSegment(App.Vector(-117.7925, -78.0796, 0), App.Vector(-125.4125, -78.0796, 0)),  # 7
], False)
sketch6.addConstraint([
    Sketcher.Constraint("Coincident", 0, 2, 1, 1),
    Sketcher.Constraint("Coincident", 1, 2, 2, 1),
    Sketcher.Constraint("Coincident", 2, 2, 3, 1),
    Sketcher.Constraint("Coincident", 3, 2, 0, 1),
    Sketcher.Constraint("Coincident", 4, 2, 5, 1),
    Sketcher.Constraint("Coincident", 5, 2, 6, 1),
    Sketcher.Constraint("Coincident", 6, 2, 7, 1),
    Sketcher.Constraint("Coincident", 7, 2, 4, 1),
    Sketcher.Constraint("Vertical", 0),
    Sketcher.Constraint("Horizontal", 1),
    Sketcher.Constraint("Vertical", 2),
    Sketcher.Constraint("Horizontal", 3),
    Sketcher.Constraint("Vertical", 4),
    Sketcher.Constraint("Horizontal", 5),
    Sketcher.Constraint("Vertical", 6),
    Sketcher.Constraint("Horizontal", 7),
    Sketcher.Constraint("Equal", 3, 4),
    Sketcher.Constraint("DistanceX", 5, 1, 5, 2, Q("0.3 in")),
    Sketcher.Constraint("DistanceX", 1, 1, 1, 2, Q("0.26 in")),
    Sketcher.Constraint("DistanceY", 0, 1, 0, 2, Q("0.197 in")),
    Sketcher.Constraint("DistanceY", 2, 2, -1, 1, Q("3.95 in")),
    Sketcher.Constraint("DistanceX", 4, 2, -1, 1, Q("4.9375 in")),
    Sketcher.Constraint("DistanceY", 4, 2, -1, 1, Q("2.814 in")),
    Sketcher.Constraint("DistanceX", 4, 2, 0, 2, Q("0.746 in")),
])
pocket4 = body.newObject("PartDesign::Pocket", "Pocket003")
pocket4.Profile = sketch6
pocket4.Length = Q("0.44 in")
pocket4.Reversed = True
doc.recompute()

fillet = body.newObject("PartDesign::Fillet", "Fillet")
fillet.Base = (pocket4, edges_at(pocket4, [
    (-106.464, 10.287, -97.828),
    (-99.86, 10.287, -97.828),
    (-121.603, 10.287, -78.08),
    (-121.603, 10.287, -71.476),
]))
fillet.Radius = Q("0.05 in")

doc.recompute()
